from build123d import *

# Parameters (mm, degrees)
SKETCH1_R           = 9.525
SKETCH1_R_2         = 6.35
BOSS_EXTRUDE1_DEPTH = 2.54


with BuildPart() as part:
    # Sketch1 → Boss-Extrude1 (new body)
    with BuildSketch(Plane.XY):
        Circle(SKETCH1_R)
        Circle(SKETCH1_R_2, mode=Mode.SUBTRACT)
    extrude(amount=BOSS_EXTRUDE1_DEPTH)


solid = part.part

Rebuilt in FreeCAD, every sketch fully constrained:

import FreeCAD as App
import Part
import Sketcher

V = App.Vector
Q = App.Units.Quantity

doc = App.newDocument("Part")
params = doc.addObject("Spreadsheet::Sheet", "Params")
for row, (alias, value) in enumerate([
    ("sketch1_diameter", "0.5 in"),
    ("sketch1_diameter2", "0.75 in"),
    ("pad1_length", "0.1 in"),
], start=1):
    params.set(f"A{row}", alias)
    params.set(f"B{row}", "=" + value)
    params.setAlias(f"B{row}", alias)

body = doc.addObject("PartDesign::Body", "Body")

sketch1 = body.newObject("Sketcher::SketchObject", "Sketch")
sketch1.AttachmentSupport = (doc.getObject("XY_Plane"), [""])
sketch1.MapMode = "FlatFace"
sketch1.addGeometry([
    Part.Circle(V(0, 0, 0), V(0, 0, 1), 10),
    Part.Circle(V(0, 0, 0), V(0, 0, 1), 6),
], False)
sketch1.addConstraint([
    Sketcher.Constraint("Coincident", 0, 3, -1, 1),
    Sketcher.Constraint("Coincident", 1, 3, -1, 1),
    Sketcher.Constraint("Diameter", 1, Q("0.5 in")),
    Sketcher.Constraint("Diameter", 0, Q("0.75 in")),
])
sketch1.setExpression("Constraints[2]", "Params.sketch1_diameter")
sketch1.setExpression("Constraints[3]", "Params.sketch1_diameter2")
pad1 = body.newObject("PartDesign::Pad", "Pad")
pad1.Profile = sketch1
pad1.setExpression("Length", "Params.pad1_length")

doc.recompute()
